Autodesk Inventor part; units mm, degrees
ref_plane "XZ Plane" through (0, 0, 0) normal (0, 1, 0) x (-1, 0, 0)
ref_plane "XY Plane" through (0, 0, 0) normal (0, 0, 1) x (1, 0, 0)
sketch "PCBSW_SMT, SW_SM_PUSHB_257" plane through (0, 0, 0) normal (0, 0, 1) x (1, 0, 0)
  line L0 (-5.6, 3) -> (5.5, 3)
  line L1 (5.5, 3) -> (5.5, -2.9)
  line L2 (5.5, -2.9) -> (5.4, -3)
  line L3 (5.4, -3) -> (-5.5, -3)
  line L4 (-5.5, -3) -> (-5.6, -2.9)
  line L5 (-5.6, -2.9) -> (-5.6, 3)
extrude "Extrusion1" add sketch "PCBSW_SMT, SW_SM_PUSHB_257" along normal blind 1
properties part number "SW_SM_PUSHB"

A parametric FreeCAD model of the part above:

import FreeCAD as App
import Part
import Sketcher
from FreeCAD import Vector
Q = App.Units.Quantity

doc = App.newDocument("Part")
body = doc.addObject("PartDesign::Body", "Body")

# Sketch on XY plane
sketch1 = doc.addObject("Sketcher::SketchObject", "Sketch")
body.addObject(sketch1)
sketch1.AttachmentSupport = (doc.XY_Plane, [""])
sketch1.MapMode = "FlatFace"
sketch1.addGeometry(Part.LineSegment(Vector(5.5, 3, 0), Vector(-5.6, 3, 0)), False)
sketch1.addGeometry(Part.LineSegment(Vector(-5.6, 3, 0), Vector(-5.6, -2.9, 0)), False)
sketch1.addGeometry(Part.LineSegment(Vector(-5.6, -2.9, 0), Vector(-5.5, -3, 0)), False)
sketch1.addGeometry(Part.LineSegment(Vector(-5.5, -3, 0), Vector(5.4, -3, 0)), False)
sketch1.addGeometry(Part.LineSegment(Vector(5.4, -3, 0), Vector(5.5, -2.9, 0)), False)
sketch1.addGeometry(Part.LineSegment(Vector(5.5, -2.9, 0), Vector(5.5, 3, 0)), False)
sketch1.addConstraint(Sketcher.Constraint("Coincident", 0, 2, 1, 1))
sketch1.addConstraint(Sketcher.Constraint("Coincident", 1, 2, 2, 1))
sketch1.addConstraint(Sketcher.Constraint("Coincident", 2, 2, 3, 1))
sketch1.addConstraint(Sketcher.Constraint("Coincident", 3, 2, 4, 1))
sketch1.addConstraint(Sketcher.Constraint("Coincident", 4, 2, 5, 1))
sketch1.addConstraint(Sketcher.Constraint("Coincident", 5, 2, 0, 1))
sketch1.addConstraint(Sketcher.Constraint("Horizontal", 0))
sketch1.addConstraint(Sketcher.Constraint("Vertical", 1))
sketch1.addConstraint(Sketcher.Constraint("Horizontal", 3))
sketch1.addConstraint(Sketcher.Constraint("Vertical", 5))
sketch1.addConstraint(Sketcher.Constraint("Symmetric", 2, 2, 5, 2, -1, 1))
sketch1.addConstraint(Sketcher.Constraint("Perpendicular", 2, 4))
sketch1.addConstraint(Sketcher.Constraint("Horizontal", 1, 2, 4, 2))
sketch1.addConstraint(Sketcher.Constraint("Equal", 2, 4))
sketch1.addConstraint(Sketcher.Constraint("DistanceX", 0, 2, 0, 1, Q("11.1 mm")))
sketch1.addConstraint(Sketcher.Constraint("DistanceX", 3, 1, 3, 2, Q("10.9 mm")))
sketch1.addConstraint(Sketcher.Constraint("DistanceY", 1, 2, 1, 1, Q("5.9 mm")))
pad1 = doc.addObject("PartDesign::Pad", "Pad")
body.addObject(pad1)
pad1.Profile = sketch1
pad1.Length = 1

doc.recompute()
